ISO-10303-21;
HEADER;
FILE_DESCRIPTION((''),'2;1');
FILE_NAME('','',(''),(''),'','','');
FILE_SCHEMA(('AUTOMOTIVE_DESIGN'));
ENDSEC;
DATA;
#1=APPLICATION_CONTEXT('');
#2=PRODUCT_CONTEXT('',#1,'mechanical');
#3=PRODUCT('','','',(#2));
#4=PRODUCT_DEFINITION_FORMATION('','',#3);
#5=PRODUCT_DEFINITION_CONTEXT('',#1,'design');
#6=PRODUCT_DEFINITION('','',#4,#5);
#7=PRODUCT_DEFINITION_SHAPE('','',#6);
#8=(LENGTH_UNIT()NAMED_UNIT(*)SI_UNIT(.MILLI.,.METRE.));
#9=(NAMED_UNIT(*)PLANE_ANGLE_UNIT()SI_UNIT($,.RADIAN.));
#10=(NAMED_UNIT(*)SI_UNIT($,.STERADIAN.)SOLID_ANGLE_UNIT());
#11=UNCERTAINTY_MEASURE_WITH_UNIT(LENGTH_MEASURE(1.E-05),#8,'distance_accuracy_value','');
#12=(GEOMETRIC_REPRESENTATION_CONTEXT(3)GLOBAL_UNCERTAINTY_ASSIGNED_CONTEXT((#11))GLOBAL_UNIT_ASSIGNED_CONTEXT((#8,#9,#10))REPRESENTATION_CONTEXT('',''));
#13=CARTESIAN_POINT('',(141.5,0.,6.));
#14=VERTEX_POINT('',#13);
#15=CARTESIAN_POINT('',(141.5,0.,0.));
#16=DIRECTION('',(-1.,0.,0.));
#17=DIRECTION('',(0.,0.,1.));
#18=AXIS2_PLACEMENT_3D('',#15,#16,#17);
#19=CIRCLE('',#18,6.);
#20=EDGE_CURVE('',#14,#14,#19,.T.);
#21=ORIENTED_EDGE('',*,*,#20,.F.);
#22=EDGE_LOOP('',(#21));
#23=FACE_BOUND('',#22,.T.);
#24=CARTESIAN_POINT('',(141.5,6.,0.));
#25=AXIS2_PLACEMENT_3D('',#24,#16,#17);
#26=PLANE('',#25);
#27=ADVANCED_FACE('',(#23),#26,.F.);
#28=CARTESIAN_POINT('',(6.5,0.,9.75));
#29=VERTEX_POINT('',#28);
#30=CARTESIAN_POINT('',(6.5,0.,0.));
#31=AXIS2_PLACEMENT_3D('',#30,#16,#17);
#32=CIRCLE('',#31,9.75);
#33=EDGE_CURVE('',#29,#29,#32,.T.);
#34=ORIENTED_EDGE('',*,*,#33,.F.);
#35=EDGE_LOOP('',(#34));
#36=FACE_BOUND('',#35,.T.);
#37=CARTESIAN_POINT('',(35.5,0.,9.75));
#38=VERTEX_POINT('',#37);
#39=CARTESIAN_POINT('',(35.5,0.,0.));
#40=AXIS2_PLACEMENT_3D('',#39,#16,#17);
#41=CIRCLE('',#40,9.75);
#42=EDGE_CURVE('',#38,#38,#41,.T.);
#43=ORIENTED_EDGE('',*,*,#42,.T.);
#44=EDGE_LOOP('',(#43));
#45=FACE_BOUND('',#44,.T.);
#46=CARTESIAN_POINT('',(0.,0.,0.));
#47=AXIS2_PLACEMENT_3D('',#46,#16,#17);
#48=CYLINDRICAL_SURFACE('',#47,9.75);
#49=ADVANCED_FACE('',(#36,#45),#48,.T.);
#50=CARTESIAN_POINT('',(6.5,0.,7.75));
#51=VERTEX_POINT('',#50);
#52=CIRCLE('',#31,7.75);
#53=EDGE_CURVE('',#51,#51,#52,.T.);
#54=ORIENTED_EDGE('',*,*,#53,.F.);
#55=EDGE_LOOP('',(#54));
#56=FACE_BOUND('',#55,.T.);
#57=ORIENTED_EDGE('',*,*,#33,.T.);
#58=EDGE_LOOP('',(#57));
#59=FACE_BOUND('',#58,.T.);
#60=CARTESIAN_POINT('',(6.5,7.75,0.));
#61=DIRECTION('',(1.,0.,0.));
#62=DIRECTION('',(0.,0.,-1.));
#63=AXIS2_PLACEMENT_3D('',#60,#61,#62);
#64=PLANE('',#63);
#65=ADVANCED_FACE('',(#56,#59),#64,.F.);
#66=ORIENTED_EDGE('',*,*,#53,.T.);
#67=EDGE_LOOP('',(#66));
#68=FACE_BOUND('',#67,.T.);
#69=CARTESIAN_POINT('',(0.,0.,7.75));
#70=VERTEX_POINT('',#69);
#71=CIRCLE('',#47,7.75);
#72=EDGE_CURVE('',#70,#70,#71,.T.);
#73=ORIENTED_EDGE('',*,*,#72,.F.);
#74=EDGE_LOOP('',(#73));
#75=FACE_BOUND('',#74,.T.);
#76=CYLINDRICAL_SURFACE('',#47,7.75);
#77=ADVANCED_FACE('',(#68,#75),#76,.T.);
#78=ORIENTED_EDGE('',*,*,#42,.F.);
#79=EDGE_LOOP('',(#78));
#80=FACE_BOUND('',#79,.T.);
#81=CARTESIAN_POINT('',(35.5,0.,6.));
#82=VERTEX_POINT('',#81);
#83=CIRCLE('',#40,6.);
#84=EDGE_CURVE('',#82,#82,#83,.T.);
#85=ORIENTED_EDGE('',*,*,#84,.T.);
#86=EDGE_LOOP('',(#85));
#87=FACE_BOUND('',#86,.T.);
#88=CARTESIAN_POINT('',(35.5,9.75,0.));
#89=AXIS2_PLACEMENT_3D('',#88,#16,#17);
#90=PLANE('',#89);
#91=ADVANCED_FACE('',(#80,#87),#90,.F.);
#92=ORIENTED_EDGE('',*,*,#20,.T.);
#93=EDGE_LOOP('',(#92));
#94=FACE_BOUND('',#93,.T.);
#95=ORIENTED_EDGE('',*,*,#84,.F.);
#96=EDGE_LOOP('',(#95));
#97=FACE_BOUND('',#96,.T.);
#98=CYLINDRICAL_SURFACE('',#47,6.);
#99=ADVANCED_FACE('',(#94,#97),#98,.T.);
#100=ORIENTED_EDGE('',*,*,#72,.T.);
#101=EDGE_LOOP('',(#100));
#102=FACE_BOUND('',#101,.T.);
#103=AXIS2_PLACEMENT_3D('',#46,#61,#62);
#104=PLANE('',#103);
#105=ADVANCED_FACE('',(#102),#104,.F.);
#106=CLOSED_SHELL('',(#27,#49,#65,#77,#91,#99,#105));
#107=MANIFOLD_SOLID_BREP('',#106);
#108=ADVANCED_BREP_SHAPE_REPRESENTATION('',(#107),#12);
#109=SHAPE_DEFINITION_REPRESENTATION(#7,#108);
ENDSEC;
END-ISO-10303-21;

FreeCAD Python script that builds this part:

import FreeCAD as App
import Part
import Sketcher
Q = App.Units.Quantity


def add_polygon(sketch, points):
    """Adds a closed chain of lines whose ends are joined by coincident constraints."""
    first, n = sketch.GeometryCount, len(points)
    for a, b in zip(points, points[1:] + points[:1]):
        sketch.addGeometry(Part.LineSegment(App.Vector(*a, 0), App.Vector(*b, 0)), False)
    for i in range(n):
        sketch.addConstraint(Sketcher.Constraint("Coincident", first + i, 2, first + (i + 1) % n, 1))

doc = App.newDocument("Part")
body = doc.addObject("PartDesign::Body", "Body")

sketch1 = body.newObject("Sketcher::SketchObject", "Sketch")
sketch1.AttachmentSupport = (doc.getObject("XY_Plane"), [""])
sketch1.MapMode = "FlatFace"
add_polygon(sketch1, [(0, 7.8), (0, 0), (141.5, 0), (141.5, 6), (35.5, 6), (35.5, 9.8), (6.5, 9.8), (6.5, 7.8)])
sketch1.addConstraint([
    Sketcher.Constraint("Vertical", 0),
    Sketcher.Constraint("Horizontal", 1),
    Sketcher.Constraint("Vertical", 2),
    Sketcher.Constraint("Horizontal", 3),
    Sketcher.Constraint("Vertical", 4),
    Sketcher.Constraint("Horizontal", 5),
    Sketcher.Constraint("Vertical", 6),
    Sketcher.Constraint("Horizontal", 7),
    Sketcher.Constraint("Coincident", 0, 2, -1, 1),
    Sketcher.Constraint("DistanceX", 3, 2, 3, 1, Q("106 mm")),
    Sketcher.Constraint("DistanceX", 5, 2, 5, 1, Q("29 mm")),
    Sketcher.Constraint("DistanceY", 2, 1, 2, 2, Q("6 mm")),
    Sketcher.Constraint("DistanceY", 6, 2, 6, 1, Q("2 mm")),
    Sketcher.Constraint("DistanceX", 1, 1, 1, 2, Q("141.5 mm")),
    Sketcher.Constraint("DistanceY", 0, 2, 0, 1, Q("7.75 mm")),
])
revolution = body.newObject("PartDesign::Revolution", "Revolution")
revolution.Profile = sketch1
revolution.ReferenceAxis = (sketch1, ["H_Axis"])
revolution.Angle = 360

doc.recompute()
